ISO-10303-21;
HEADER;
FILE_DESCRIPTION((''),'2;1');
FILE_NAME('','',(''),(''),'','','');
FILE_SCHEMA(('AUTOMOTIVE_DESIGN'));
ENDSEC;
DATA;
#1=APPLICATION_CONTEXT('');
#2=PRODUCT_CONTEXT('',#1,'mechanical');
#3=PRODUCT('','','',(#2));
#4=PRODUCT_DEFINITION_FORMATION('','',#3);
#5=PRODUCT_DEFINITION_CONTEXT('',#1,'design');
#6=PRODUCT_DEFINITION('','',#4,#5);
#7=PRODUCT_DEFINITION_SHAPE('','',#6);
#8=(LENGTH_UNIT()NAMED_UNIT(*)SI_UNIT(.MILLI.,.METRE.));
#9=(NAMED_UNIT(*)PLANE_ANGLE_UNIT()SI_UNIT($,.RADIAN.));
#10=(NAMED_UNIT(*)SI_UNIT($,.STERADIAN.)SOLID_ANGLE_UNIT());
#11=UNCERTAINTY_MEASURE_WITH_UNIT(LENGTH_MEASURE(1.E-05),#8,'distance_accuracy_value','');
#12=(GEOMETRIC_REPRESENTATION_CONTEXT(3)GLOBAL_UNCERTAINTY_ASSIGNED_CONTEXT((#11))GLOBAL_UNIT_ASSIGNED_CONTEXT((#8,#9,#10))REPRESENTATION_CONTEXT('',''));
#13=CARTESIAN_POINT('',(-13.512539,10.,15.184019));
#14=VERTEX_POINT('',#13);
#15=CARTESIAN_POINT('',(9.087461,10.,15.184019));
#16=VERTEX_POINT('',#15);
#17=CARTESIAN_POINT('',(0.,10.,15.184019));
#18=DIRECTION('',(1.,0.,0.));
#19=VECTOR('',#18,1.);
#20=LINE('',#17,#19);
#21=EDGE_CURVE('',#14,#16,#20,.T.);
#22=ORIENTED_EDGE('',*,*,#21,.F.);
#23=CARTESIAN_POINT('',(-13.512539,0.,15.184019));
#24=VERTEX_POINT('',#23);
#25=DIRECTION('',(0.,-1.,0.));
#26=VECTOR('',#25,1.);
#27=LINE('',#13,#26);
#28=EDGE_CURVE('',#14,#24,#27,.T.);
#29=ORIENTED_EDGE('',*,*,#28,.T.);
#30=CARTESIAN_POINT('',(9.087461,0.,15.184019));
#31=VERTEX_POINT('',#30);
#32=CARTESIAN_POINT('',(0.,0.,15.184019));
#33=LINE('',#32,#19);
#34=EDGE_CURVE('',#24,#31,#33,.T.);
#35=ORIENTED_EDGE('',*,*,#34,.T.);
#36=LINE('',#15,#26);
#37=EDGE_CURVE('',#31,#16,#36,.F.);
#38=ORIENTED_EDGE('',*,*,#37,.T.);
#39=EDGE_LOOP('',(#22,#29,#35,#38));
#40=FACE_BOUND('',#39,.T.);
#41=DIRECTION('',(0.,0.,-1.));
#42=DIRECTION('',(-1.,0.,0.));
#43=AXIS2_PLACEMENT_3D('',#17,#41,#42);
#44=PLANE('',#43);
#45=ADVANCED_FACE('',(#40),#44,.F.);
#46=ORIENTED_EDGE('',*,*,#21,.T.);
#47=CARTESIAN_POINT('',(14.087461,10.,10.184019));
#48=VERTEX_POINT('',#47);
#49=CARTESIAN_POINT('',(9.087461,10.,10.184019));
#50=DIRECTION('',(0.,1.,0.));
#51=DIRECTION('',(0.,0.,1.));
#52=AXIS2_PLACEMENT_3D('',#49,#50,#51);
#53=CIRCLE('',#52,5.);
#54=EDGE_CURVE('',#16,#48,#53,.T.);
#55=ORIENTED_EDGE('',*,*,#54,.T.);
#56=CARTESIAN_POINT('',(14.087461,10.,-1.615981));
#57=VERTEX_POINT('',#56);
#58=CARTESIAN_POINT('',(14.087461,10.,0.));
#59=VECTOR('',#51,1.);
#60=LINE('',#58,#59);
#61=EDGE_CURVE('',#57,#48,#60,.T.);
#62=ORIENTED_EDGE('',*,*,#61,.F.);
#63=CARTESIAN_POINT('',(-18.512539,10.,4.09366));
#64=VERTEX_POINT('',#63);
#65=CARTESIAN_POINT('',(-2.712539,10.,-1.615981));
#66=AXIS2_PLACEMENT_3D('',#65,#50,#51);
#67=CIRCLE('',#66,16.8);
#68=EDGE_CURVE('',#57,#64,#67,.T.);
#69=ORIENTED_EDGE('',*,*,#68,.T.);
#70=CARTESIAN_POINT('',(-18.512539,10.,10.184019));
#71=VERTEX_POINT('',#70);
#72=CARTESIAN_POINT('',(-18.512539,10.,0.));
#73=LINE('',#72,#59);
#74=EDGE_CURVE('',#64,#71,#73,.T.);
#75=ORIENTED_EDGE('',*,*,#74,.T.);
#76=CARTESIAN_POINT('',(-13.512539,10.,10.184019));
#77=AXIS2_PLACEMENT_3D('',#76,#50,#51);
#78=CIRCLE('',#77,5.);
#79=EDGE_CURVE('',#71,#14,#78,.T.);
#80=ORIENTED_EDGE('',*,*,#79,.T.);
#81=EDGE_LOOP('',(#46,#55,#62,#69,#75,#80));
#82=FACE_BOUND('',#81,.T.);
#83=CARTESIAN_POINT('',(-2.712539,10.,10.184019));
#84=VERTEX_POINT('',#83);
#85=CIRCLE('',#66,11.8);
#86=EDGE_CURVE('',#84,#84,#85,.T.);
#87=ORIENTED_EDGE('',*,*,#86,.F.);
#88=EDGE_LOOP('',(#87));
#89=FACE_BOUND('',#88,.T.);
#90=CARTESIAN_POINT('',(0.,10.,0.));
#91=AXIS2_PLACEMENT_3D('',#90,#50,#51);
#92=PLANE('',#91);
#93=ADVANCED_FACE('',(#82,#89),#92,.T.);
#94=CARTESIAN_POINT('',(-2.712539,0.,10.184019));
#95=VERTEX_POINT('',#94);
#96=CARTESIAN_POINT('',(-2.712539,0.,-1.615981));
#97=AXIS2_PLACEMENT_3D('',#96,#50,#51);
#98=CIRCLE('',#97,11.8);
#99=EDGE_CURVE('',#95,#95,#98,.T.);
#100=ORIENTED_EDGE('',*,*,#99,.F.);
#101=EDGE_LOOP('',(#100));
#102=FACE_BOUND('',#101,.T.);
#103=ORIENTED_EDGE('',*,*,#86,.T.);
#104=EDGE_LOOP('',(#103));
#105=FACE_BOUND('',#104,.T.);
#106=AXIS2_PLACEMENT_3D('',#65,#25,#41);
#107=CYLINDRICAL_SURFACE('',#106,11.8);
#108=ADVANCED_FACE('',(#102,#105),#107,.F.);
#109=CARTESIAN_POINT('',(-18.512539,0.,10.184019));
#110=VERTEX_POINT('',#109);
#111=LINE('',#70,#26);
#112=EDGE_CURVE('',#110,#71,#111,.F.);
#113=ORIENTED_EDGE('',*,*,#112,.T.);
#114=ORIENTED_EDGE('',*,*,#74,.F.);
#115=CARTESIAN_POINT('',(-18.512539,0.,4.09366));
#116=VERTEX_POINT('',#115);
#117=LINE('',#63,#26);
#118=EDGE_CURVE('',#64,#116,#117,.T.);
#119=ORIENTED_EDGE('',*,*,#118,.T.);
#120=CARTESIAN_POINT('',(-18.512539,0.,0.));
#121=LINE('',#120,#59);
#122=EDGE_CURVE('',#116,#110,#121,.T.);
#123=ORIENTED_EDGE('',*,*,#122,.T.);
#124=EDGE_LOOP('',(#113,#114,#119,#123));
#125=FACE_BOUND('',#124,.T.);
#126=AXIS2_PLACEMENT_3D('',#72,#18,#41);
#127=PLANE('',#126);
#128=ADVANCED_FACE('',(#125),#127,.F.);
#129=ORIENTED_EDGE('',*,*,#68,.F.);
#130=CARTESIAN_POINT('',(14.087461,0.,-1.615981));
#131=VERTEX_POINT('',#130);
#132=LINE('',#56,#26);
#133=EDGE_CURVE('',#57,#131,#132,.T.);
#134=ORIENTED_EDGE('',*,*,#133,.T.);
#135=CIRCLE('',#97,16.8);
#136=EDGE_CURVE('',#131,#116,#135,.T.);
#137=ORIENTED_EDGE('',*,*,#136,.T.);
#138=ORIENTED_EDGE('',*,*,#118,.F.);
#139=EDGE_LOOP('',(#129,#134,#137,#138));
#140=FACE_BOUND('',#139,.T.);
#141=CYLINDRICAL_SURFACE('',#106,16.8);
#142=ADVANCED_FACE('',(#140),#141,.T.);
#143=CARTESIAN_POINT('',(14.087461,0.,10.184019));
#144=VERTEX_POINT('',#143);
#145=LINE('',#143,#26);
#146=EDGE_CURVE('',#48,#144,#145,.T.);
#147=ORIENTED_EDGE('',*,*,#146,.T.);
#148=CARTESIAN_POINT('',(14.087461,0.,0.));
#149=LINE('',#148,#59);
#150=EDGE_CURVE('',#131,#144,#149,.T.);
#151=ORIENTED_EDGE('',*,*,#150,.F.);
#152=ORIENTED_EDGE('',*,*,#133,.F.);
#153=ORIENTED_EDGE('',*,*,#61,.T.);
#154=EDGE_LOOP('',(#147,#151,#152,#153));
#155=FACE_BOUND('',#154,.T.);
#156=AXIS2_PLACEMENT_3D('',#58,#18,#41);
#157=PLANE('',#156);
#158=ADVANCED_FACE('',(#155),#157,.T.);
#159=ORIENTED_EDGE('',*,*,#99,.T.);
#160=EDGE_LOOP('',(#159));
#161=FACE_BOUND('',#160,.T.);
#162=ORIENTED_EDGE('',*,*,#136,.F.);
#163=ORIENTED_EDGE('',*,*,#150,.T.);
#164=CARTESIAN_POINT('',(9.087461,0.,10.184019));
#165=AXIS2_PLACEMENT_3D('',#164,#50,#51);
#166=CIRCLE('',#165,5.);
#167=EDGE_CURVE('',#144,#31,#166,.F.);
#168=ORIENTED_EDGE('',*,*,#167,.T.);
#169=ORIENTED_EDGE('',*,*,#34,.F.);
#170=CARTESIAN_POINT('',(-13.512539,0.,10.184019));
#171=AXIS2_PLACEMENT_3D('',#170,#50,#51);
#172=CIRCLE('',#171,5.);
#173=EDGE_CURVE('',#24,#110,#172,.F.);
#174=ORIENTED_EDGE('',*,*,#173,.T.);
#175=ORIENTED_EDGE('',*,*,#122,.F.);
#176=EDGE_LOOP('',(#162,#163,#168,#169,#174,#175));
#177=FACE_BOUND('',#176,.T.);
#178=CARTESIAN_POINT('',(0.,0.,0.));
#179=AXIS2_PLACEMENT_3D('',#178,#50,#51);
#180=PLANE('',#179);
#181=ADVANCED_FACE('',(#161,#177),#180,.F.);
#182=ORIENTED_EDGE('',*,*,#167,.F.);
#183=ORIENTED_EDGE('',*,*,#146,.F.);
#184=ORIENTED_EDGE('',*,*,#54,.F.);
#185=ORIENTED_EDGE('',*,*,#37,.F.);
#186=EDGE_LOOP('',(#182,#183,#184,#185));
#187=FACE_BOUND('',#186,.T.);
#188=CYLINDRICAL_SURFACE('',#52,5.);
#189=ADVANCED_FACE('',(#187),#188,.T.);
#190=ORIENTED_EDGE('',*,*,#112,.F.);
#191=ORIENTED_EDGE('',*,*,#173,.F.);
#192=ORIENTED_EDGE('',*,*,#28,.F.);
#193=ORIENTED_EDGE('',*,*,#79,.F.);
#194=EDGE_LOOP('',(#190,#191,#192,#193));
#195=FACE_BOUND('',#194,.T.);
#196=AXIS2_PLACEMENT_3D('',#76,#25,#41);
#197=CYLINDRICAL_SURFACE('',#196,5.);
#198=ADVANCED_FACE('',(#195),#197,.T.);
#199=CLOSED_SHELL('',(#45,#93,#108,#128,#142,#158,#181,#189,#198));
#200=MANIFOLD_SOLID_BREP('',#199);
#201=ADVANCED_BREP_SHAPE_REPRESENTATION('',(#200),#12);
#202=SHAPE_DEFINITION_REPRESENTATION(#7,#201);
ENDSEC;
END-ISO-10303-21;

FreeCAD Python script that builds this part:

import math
import FreeCAD as App
import Part
import Sketcher


def edges_at(feature, points):
    """Names of the edges that pass closest to the given points."""
    edges = feature.Shape.Edges
    near = lambda p: min(range(len(edges)), key=lambda i: edges[i].distToShape(Part.Vertex(*p))[0])
    return sorted({f"Edge{near(p) + 1}" for p in points})

doc = App.newDocument("Part")
body = doc.addObject("PartDesign::Body", "Body")

sketch1 = body.newObject("Sketcher::SketchObject", "Sketch")
sketch1.AttachmentSupport = (doc.getObject("XZ_Plane"), [""])
sketch1.MapMode = "FlatFace"
sketch1.addGeometry([
    Part.LineSegment(App.Vector(14, 15, 0), App.Vector(14, -2, 0)),
    Part.ArcOfCircle(Part.Circle(App.Vector(-3, -2, 0), App.Vector(0, 0, 1), 17), math.radians(160), math.radians(360)),
    Part.LineSegment(App.Vector(-19, 4, 0), App.Vector(-19, 15, 0)),
    Part.LineSegment(App.Vector(-19, 15, 0), App.Vector(14, 15, 0)),
    Part.Circle(App.Vector(-3, -2, 0), App.Vector(0, 0, 1), 12),
], False)
sketch1.addConstraint([
    Sketcher.Constraint("Tangent", 0, 2, 1, 2),
    Sketcher.Constraint("Coincident", 1, 1, 2, 1),
    Sketcher.Constraint("Coincident", 2, 2, 3, 1),
    Sketcher.Constraint("Coincident", 3, 2, 0, 1),
    Sketcher.Constraint("Vertical", 0),
    Sketcher.Constraint("Vertical", 2),
    Sketcher.Constraint("Horizontal", 3),
    Sketcher.Constraint("Coincident", 4, 3, 1, 3),
    Sketcher.Constraint("Diameter", 4, 23.6),
    Sketcher.Constraint("Radius", 1, 16.8),
    Sketcher.Constraint("DistanceX", 3, 1, 3, 2, 32.6),
    Sketcher.Constraint("DistanceY", 0, 2, 0, 1, 16.8),
    Sketcher.Constraint("DistanceX", 1, 3, -1, 1, 2.712539),
    Sketcher.Constraint("DistanceY", 1, 3, -1, 1, 1.615981),
])
pad1 = body.newObject("PartDesign::Pad", "Pad")
pad1.Profile = sketch1
pad1.Length = 10
pad1.Reversed = True
doc.recompute()

fillet = body.newObject("PartDesign::Fillet", "Fillet")
fillet.Base = (pad1, edges_at(pad1, [(14.087, 5, 15.184), (-18.513, 5, 15.184)]))
fillet.Radius = 5

doc.recompute()
